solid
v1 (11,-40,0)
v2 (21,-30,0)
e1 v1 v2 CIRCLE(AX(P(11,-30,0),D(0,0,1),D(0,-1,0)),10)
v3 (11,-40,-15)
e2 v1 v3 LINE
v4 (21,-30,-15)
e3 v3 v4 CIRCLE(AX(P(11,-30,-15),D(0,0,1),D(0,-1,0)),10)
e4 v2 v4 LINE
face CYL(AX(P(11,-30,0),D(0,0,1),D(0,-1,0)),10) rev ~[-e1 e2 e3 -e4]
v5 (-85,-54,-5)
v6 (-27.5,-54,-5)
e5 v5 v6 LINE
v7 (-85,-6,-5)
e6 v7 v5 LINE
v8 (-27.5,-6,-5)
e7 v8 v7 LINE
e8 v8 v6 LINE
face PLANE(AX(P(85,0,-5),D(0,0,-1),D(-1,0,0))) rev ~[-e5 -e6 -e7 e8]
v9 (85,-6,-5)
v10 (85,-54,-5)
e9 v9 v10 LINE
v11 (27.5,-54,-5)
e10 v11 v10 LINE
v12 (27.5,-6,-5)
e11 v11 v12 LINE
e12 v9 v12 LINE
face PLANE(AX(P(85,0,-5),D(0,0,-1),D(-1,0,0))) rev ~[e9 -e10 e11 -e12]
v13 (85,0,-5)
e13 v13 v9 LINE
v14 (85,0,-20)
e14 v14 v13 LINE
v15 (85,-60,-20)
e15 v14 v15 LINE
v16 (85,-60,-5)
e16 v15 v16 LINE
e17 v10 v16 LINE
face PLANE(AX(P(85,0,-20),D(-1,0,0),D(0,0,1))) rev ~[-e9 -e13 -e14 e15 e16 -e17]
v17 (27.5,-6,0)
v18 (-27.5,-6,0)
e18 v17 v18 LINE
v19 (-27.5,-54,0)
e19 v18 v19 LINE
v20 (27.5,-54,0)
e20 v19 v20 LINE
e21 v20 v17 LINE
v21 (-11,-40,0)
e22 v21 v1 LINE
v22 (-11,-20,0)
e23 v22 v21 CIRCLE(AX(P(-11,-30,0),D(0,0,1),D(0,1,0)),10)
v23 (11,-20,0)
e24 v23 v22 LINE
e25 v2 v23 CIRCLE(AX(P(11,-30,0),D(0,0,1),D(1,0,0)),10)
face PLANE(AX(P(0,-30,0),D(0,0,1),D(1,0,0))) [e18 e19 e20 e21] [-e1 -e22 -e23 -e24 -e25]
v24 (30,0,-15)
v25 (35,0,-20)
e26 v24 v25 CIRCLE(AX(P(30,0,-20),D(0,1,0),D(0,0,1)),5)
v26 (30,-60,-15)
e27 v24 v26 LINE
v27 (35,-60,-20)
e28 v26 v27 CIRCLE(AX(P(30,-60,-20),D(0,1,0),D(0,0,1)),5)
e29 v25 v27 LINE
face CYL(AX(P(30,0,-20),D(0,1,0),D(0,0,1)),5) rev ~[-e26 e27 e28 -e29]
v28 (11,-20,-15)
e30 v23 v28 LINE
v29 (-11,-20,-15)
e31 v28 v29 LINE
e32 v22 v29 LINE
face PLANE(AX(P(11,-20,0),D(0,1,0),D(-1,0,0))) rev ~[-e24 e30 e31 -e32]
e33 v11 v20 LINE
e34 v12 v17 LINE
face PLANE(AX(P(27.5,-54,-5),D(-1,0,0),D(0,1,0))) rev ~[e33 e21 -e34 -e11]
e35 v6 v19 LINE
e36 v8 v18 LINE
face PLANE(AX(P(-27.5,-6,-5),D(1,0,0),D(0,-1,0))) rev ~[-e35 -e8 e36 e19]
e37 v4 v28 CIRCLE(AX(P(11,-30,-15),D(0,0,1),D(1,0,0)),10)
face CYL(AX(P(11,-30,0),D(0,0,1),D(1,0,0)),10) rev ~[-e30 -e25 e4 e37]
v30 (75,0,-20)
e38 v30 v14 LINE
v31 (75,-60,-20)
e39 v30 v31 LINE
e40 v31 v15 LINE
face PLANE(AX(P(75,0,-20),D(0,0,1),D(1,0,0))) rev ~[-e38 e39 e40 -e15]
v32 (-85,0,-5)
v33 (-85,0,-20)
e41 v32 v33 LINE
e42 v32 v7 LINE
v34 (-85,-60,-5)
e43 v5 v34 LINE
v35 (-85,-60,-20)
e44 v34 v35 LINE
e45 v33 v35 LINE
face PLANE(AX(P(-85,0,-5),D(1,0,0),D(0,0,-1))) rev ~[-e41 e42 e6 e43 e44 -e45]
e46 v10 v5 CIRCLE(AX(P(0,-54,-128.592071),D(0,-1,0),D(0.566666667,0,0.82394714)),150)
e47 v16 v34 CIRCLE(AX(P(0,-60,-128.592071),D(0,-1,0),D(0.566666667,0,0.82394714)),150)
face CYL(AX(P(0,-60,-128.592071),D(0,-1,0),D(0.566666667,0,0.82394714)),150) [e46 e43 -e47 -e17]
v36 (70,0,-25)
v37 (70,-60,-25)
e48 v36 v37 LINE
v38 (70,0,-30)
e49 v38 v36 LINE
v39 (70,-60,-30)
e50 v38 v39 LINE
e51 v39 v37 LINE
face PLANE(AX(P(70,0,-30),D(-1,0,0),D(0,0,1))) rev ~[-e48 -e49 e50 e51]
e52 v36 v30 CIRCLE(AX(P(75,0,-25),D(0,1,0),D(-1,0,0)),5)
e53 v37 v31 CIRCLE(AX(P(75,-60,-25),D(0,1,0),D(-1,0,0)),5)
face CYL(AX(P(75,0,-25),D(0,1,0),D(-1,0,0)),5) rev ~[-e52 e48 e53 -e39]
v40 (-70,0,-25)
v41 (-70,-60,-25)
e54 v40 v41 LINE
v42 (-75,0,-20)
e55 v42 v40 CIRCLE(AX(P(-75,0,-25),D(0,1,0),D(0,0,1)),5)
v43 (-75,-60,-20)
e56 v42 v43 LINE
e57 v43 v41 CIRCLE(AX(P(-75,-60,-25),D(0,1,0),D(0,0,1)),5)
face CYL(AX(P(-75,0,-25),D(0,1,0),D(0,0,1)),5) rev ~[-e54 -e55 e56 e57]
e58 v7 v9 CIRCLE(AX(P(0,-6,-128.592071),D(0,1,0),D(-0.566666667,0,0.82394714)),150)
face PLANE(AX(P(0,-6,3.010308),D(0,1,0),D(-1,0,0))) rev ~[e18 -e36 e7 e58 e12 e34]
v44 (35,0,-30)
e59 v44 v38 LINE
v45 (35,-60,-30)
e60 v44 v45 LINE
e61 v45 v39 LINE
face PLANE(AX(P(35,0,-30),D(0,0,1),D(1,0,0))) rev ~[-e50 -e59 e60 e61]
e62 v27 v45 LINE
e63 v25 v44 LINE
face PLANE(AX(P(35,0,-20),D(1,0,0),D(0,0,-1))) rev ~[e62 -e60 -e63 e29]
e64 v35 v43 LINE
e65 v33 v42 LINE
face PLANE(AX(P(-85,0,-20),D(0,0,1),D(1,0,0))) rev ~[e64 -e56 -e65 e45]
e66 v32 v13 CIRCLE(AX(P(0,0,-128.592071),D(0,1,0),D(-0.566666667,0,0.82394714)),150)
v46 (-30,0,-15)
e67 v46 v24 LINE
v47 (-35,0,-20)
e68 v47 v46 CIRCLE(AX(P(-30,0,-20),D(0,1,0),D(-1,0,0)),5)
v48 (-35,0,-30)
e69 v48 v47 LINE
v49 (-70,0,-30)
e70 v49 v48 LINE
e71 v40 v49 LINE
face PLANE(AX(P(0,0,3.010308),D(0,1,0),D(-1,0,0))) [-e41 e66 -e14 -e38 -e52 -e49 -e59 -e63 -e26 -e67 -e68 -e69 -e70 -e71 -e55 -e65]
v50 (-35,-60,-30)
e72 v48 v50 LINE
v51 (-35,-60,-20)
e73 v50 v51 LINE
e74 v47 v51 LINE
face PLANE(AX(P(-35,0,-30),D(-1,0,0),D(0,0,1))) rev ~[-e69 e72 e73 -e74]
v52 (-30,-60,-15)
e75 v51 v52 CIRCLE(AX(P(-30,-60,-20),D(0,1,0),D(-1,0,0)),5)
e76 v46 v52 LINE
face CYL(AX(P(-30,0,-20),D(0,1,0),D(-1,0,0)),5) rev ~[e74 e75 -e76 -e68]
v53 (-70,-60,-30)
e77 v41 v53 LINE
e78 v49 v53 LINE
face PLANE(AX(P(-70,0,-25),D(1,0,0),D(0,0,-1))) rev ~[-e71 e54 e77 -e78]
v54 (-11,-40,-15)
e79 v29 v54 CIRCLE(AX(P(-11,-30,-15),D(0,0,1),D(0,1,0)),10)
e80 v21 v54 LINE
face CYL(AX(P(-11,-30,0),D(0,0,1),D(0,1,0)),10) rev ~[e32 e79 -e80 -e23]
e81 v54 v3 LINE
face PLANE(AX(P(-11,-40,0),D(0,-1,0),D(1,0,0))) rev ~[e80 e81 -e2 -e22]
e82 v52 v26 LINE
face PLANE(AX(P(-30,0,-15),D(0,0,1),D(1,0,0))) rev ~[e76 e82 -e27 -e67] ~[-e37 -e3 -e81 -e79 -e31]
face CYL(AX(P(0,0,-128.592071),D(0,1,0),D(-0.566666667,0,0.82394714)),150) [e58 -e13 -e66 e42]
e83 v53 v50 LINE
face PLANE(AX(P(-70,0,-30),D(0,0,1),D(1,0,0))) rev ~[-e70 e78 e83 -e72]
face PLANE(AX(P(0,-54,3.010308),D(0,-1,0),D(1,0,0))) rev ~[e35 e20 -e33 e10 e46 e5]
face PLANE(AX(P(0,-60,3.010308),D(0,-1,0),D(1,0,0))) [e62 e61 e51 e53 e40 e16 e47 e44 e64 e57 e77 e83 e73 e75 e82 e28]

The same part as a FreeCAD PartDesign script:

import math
import FreeCAD as App
import Part
import Sketcher

V = App.Vector
Q = App.Units.Quantity


def add_polygon(sketch, points):
    """Adds a closed chain of lines whose ends are joined by coincident constraints."""
    first, n = sketch.GeometryCount, len(points)
    for a, b in zip(points, points[1:] + points[:1]):
        sketch.addGeometry(Part.LineSegment(App.Vector(*a, 0), App.Vector(*b, 0)), False)
    for i in range(n):
        sketch.addConstraint(Sketcher.Constraint("Coincident", first + i, 2, first + (i + 1) % n, 1))

doc = App.newDocument("Part")
body = doc.addObject("PartDesign::Body", "Body")

sketch1 = body.newObject("Sketcher::SketchObject", "Sketch")
sketch1.AttachmentSupport = (doc.getObject("XZ_Plane"), [""])
sketch1.MapMode = "FlatFace"
sketch1.addGeometry([
    Part.LineSegment(V(35, -30, 0), V(70, -30, 0)),
    Part.LineSegment(V(70, -30, 0), V(70, -25, 0)),
    Part.ArcOfCircle(Part.Circle(V(75, -25, 0), V(0, 0, 1), 5), math.radians(90), math.radians(180)),
    Part.LineSegment(V(75, -20, 0), V(85, -20, 0)),
    Part.LineSegment(V(85, -20, 0), V(85, -5, 0)),
    Part.LineSegment(V(85, -5, 0), V(-85, -5, 0)),
    Part.LineSegment(V(-85, -5, 0), V(-85, -20, 0)),
    Part.LineSegment(V(-85, -20, 0), V(-75, -20, 0)),
    Part.ArcOfCircle(Part.Circle(V(-75, -25, 0), V(0, 0, 1), 5), math.radians(0), math.radians(90)),
    Part.LineSegment(V(-70, -25, 0), V(-70, -30, 0)),
    Part.LineSegment(V(-70, -30, 0), V(-35, -30, 0)),
    Part.LineSegment(V(-35, -30, 0), V(-35, -20, 0)),
    Part.ArcOfCircle(Part.Circle(V(-30, -20, 0), V(0, 0, 1), 5), math.radians(90), math.radians(180)),
    Part.LineSegment(V(-30, -15, 0), V(30, -15, 0)),
    Part.ArcOfCircle(Part.Circle(V(30, -20, 0), V(0, 0, 1), 5), math.radians(0), math.radians(90)),
    Part.LineSegment(V(35, -20, 0), V(35, -30, 0)),
], False)
sketch1.addConstraint([
    Sketcher.Constraint("Coincident", 0, 2, 1, 1),
    Sketcher.Constraint("Tangent", 1, 2, 2, 2),
    Sketcher.Constraint("Tangent", 2, 1, 3, 1),
    Sketcher.Constraint("Coincident", 3, 2, 4, 1),
    Sketcher.Constraint("Coincident", 4, 2, 5, 1),
    Sketcher.Constraint("Coincident", 5, 2, 6, 1),
    Sketcher.Constraint("Coincident", 6, 2, 7, 1),
    Sketcher.Constraint("Tangent", 7, 2, 8, 2),
    Sketcher.Constraint("Tangent", 8, 1, 9, 1),
    Sketcher.Constraint("Coincident", 9, 2, 10, 1),
    Sketcher.Constraint("Coincident", 10, 2, 11, 1),
    Sketcher.Constraint("Tangent", 11, 2, 12, 2),
    Sketcher.Constraint("Tangent", 12, 1, 13, 1),
    Sketcher.Constraint("Tangent", 13, 2, 14, 2),
    Sketcher.Constraint("Tangent", 14, 1, 15, 1),
    Sketcher.Constraint("Coincident", 15, 2, 0, 1),
    Sketcher.Constraint("Horizontal", 0),
    Sketcher.Constraint("Vertical", 1),
    Sketcher.Constraint("Horizontal", 3),
    Sketcher.Constraint("Vertical", 4),
    Sketcher.Constraint("Horizontal", 5),
    Sketcher.Constraint("Vertical", 6),
    Sketcher.Constraint("Horizontal", 7),
    Sketcher.Constraint("Vertical", 9),
    Sketcher.Constraint("Horizontal", 10),
    Sketcher.Constraint("Vertical", 11),
    Sketcher.Constraint("Horizontal", 13),
    Sketcher.Constraint("Vertical", 15),
    Sketcher.Constraint("Equal", 2, 8),
    Sketcher.Constraint("Equal", 8, 12),
    Sketcher.Constraint("Equal", 12, 14),
    Sketcher.Constraint("Symmetric", 2, 3, 8, 3, -2),
    Sketcher.Constraint("Symmetric", 10, 2, 15, 2, -2),
    Sketcher.Constraint("Horizontal", 14, 3, 2, 1),
    Sketcher.Constraint("Equal", 3, 7),
    Sketcher.Constraint("Equal", 7, 11),
    Sketcher.Constraint("Radius", 2, Q("5 mm")),
    Sketcher.Constraint("DistanceX", 0, 1, 0, 2, Q("35 mm")),
    Sketcher.Constraint("DistanceX", 3, 1, 3, 2, Q("10 mm")),
    Sketcher.Constraint("DistanceX", 5, 2, 5, 1, Q("170 mm")),
    Sketcher.Constraint("DistanceY", 4, 1, 4, 2, Q("15 mm")),
    Sketcher.Constraint("DistanceY", 2, 3, -1, 1, Q("25 mm")),
])
pad1 = body.newObject("PartDesign::Pad", "Pad")
pad1.Profile = sketch1
pad1.Length = 60

sketch2 = body.newObject("Sketcher::SketchObject", "Sketch001")
sketch2.AttachmentSupport = (doc.getObject("XZ_Plane"), [""])
sketch2.MapMode = "FlatFace"
sketch2.addGeometry([
    Part.LineSegment(V(85, -5, 0), V(-85, -5, 0)),
    Part.ArcOfCircle(Part.Circle(V(0, -128.592071, 0), V(0, 0, 1), 150), math.radians(55.481892), math.radians(124.518108)),
], False)
sketch2.addConstraint([
    Sketcher.Constraint("Coincident", 0, 1, 1, 1),
    Sketcher.Constraint("Coincident", 1, 2, 0, 2),
    Sketcher.Constraint("Horizontal", 0),
    Sketcher.Constraint("PointOnObject", 1, 3, -2),
    Sketcher.Constraint("Radius", 1, Q("150 mm")),
    Sketcher.Constraint("DistanceX", 0, 2, 0, 1, Q("170 mm")),
    Sketcher.Constraint("DistanceY", 0, 1, -1, 1, Q("5 mm")),
])
pad2 = body.newObject("PartDesign::Pad", "Pad001")
pad2.Profile = sketch2
pad2.Length = 6

sketch3 = body.newObject("Sketcher::SketchObject", "Sketch002")
sketch3.AttachmentSupport = (doc.getObject("XZ_Plane"), [""])
sketch3.MapMode = "FlatFace"
sketch3.AttachmentOffset = App.Placement(V(0, 0, 60), App.Rotation())
sketch3.addGeometry([
    Part.LineSegment(V(-85, -5, 0), V(85, -5, 0)),
    Part.ArcOfCircle(Part.Circle(V(0, -128.592071, 0), V(0, 0, 1), 150), math.radians(55.481892), math.radians(124.518108)),
], False)
sketch3.addConstraint([
    Sketcher.Constraint("Coincident", 0, 1, 1, 2),
    Sketcher.Constraint("Coincident", 1, 1, 0, 2),
    Sketcher.Constraint("Horizontal", 0),
    Sketcher.Constraint("PointOnObject", 1, 3, -2),
    Sketcher.Constraint("Radius", 1, Q("150 mm")),
    Sketcher.Constraint("DistanceX", 0, 1, 0, 2, Q("170 mm")),
    Sketcher.Constraint("DistanceY", 0, 1, -1, 1, Q("5 mm")),
])
pad3 = body.newObject("PartDesign::Pad", "Pad002")
pad3.Profile = sketch3
pad3.Length = 6
pad3.Reversed = True

sketch4 = body.newObject("Sketcher::SketchObject", "Sketch003")
sketch4.AttachmentSupport = (doc.getObject("XY_Plane"), [""])
sketch4.MapMode = "FlatFace"
sketch4.AttachmentOffset = App.Placement(V(0, 0, -5), App.Rotation())
add_polygon(sketch4, [(27.5, -54), (27.5, -6), (-27.5, -6), (-27.5, -54)])
sketch4.addConstraint([
    Sketcher.Constraint("Vertical", 0),
    Sketcher.Constraint("Horizontal", 1),
    Sketcher.Constraint("Vertical", 2),
    Sketcher.Constraint("Horizontal", 3),
    Sketcher.Constraint("DistanceX", 1, 2, 1, 1, Q("55 mm")),
    Sketcher.Constraint("DistanceY", 0, 1, 0, 2, Q("48 mm")),
    Sketcher.Constraint("DistanceY", 0, 2, -1, 1, Q("6 mm")),
    Sketcher.Constraint("DistanceX", -1, 1, 0, 2, Q("27.5 mm")),
])
pad4 = body.newObject("PartDesign::Pad", "Pad003")
pad4.Profile = sketch4
pad4.Length = 5

sketch5 = body.newObject("Sketcher::SketchObject", "Sketch004")
sketch5.AttachmentSupport = (doc.getObject("XY_Plane"), [""])
sketch5.MapMode = "FlatFace"
sketch5.addGeometry([
    Part.ArcOfCircle(Part.Circle(V(-11, -30, 0), V(0, 0, 1), 10), math.radians(90), math.radians(270)),
    Part.LineSegment(V(-11, -40, 0), V(11, -40, 0)),
    Part.ArcOfCircle(Part.Circle(V(11, -30, 0), V(0, 0, 1), 10), math.radians(-90), math.radians(0)),
    Part.ArcOfCircle(Part.Circle(V(11, -30, 0), V(0, 0, 1), 10), math.radians(0), math.radians(90)),
    Part.LineSegment(V(11, -20, 0), V(-11, -20, 0)),
], False)
sketch5.addConstraint([
    Sketcher.Constraint("Tangent", 0, 2, 1, 1),
    Sketcher.Constraint("Tangent", 1, 2, 2, 1),
    Sketcher.Constraint("Tangent", 2, 2, 3, 1),
    Sketcher.Constraint("Tangent", 3, 2, 4, 1),
    Sketcher.Constraint("Tangent", 4, 2, 0, 1),
    Sketcher.Constraint("Horizontal", 1),
    Sketcher.Constraint("Horizontal", 4),
    Sketcher.Constraint("Equal", 0, 2),
    Sketcher.Constraint("Horizontal", 3, 3, 2, 2),
    Sketcher.Constraint("Radius", 0, Q("10 mm")),
    Sketcher.Constraint("DistanceX", 1, 1, 1, 2, Q("22 mm")),
    Sketcher.Constraint("DistanceX", 0, 3, -1, 1, Q("11 mm")),
    Sketcher.Constraint("DistanceY", 0, 3, -1, 1, Q("30 mm")),
])
pocket1 = body.newObject("PartDesign::Pocket", "Pocket")
pocket1.Profile = sketch5
pocket1.Type = "ThroughAll"

doc.recompute()
